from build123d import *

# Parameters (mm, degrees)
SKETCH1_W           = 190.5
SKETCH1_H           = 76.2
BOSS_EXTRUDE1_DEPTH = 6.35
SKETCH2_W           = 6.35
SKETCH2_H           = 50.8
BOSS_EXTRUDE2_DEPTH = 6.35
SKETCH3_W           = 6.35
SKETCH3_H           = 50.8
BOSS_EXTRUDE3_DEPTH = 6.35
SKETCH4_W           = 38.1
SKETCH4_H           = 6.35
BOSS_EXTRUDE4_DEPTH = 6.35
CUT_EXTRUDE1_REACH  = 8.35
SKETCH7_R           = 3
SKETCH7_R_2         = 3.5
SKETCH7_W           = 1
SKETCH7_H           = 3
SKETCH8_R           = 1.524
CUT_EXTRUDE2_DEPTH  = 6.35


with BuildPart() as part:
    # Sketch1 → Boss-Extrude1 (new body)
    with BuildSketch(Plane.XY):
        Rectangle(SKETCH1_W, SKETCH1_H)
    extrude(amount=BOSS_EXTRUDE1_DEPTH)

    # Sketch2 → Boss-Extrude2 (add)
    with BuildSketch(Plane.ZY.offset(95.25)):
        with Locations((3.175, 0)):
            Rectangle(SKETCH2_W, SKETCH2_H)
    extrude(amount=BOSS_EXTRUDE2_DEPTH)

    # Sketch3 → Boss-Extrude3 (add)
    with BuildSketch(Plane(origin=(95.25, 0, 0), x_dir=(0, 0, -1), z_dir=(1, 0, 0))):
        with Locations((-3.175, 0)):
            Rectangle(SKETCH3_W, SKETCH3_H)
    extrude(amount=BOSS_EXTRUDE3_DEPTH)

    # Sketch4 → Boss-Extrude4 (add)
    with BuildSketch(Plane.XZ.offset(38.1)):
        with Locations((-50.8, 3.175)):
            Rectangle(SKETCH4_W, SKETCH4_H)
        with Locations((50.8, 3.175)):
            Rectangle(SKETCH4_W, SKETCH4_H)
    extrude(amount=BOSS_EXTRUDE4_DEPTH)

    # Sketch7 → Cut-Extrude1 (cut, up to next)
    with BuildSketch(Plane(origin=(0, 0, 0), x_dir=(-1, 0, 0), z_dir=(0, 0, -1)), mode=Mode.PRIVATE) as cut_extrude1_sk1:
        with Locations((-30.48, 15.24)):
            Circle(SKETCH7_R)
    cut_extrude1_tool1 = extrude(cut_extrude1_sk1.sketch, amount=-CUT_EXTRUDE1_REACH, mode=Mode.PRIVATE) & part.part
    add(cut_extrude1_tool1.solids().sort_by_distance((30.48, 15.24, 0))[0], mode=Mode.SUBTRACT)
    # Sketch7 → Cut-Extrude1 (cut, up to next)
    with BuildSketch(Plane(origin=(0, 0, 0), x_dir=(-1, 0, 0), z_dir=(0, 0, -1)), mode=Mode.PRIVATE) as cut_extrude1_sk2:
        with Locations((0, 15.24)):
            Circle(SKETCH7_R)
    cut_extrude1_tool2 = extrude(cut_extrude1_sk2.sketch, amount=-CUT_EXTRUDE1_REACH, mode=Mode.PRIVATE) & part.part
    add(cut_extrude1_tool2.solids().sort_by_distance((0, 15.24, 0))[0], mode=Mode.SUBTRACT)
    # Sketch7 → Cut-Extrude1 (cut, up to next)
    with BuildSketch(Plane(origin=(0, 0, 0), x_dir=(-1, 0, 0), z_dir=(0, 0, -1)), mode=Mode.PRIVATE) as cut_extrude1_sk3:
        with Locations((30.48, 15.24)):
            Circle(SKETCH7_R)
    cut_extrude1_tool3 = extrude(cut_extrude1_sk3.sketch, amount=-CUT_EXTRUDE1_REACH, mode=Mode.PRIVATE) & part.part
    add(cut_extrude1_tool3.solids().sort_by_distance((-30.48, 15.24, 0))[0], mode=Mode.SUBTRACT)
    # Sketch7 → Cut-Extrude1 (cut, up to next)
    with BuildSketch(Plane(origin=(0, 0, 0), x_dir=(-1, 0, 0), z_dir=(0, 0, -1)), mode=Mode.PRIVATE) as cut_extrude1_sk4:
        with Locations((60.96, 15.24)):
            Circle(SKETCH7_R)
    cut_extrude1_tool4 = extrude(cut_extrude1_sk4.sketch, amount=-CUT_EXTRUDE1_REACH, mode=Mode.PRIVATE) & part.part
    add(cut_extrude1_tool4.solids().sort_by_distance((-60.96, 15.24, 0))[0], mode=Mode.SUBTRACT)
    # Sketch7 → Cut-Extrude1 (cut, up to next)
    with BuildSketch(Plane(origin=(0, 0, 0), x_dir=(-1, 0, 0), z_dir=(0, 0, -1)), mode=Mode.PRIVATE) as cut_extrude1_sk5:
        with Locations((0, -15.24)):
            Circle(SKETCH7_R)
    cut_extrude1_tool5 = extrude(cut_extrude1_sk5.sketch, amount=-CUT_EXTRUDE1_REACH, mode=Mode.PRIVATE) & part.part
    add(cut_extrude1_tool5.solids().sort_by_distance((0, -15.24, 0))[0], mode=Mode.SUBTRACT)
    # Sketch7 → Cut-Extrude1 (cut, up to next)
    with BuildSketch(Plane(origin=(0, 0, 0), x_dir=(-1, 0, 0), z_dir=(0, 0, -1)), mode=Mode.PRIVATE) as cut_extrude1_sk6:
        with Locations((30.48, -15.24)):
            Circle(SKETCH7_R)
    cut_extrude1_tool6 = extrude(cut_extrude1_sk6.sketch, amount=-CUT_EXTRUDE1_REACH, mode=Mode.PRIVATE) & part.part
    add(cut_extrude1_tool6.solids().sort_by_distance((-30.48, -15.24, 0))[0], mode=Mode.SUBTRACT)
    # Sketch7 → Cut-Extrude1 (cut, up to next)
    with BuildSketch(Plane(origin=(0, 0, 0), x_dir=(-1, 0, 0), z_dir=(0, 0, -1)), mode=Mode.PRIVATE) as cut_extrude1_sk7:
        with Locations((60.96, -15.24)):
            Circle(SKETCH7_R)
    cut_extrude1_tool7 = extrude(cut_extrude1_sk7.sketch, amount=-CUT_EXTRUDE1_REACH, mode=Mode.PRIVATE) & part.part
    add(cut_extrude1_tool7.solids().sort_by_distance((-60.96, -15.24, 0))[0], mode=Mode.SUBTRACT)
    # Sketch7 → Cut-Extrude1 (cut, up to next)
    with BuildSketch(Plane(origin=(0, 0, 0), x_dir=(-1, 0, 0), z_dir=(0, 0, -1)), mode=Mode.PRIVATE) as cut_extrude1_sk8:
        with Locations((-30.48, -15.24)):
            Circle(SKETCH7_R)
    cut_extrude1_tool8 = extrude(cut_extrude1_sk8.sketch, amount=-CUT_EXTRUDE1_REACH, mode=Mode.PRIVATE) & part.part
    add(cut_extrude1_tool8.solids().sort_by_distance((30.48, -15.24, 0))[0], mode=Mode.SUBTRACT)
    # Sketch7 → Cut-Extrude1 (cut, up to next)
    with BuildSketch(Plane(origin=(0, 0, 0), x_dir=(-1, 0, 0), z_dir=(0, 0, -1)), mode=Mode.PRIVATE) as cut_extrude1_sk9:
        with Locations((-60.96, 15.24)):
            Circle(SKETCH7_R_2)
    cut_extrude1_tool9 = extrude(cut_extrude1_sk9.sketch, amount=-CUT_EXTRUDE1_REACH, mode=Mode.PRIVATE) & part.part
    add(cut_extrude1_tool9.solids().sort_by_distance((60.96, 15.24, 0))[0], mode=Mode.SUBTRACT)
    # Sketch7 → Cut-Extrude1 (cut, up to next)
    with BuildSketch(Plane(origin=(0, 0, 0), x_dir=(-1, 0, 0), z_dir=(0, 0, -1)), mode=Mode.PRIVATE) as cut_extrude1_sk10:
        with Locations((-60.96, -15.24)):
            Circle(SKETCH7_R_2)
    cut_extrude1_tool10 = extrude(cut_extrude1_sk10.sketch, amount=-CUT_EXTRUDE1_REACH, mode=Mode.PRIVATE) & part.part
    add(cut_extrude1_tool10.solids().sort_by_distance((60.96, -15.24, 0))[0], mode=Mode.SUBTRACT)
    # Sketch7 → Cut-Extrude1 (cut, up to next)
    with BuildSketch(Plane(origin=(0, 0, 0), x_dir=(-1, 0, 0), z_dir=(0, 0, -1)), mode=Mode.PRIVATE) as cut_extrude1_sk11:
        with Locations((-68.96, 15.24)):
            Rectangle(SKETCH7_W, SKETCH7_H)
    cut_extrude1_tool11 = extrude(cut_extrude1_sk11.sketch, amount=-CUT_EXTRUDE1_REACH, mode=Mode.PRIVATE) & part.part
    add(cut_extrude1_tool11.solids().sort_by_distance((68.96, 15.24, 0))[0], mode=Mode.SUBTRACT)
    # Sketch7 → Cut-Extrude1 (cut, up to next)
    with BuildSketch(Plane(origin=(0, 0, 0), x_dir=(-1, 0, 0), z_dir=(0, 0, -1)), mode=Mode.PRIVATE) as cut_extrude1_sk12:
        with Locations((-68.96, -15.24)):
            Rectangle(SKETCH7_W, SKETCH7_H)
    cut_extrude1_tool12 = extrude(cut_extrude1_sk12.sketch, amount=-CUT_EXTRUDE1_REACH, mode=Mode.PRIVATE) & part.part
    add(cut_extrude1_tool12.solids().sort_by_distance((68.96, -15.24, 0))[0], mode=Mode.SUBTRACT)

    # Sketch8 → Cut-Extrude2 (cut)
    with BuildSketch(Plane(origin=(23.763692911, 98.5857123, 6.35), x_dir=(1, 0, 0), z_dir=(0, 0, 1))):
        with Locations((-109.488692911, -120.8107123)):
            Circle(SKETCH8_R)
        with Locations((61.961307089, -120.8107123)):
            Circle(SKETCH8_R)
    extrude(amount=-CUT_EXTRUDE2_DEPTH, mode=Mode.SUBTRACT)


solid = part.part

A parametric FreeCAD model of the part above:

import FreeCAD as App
import Part
import Sketcher
Q = App.Units.Quantity

doc = App.newDocument("Part")
body = doc.addObject("PartDesign::Body", "Body")

sketch1 = body.newObject("Sketcher::SketchObject", "Sketch")
sketch1.AttachmentSupport = (doc.getObject("XY_Plane"), [""])
sketch1.MapMode = "FlatFace"
sketch1.addGeometry(Part.LineSegment(App.Vector(-95, 38, 0), App.Vector(-95, -38, 0)), False)
sketch1.addGeometry(Part.LineSegment(App.Vector(-95, -38, 0), App.Vector(95, -38, 0)), False)
sketch1.addGeometry(Part.LineSegment(App.Vector(95, -38, 0), App.Vector(95, 38, 0)), False)
sketch1.addGeometry(Part.LineSegment(App.Vector(95, 38, 0), App.Vector(-95, 38, 0)), False)
sketch1.addConstraint(Sketcher.Constraint("Coincident", 0, 2, 1, 1))
sketch1.addConstraint(Sketcher.Constraint("Coincident", 1, 2, 2, 1))
sketch1.addConstraint(Sketcher.Constraint("Coincident", 2, 2, 3, 1))
sketch1.addConstraint(Sketcher.Constraint("Coincident", 3, 2, 0, 1))
sketch1.addConstraint(Sketcher.Constraint("Vertical", 0))
sketch1.addConstraint(Sketcher.Constraint("Horizontal", 1))
sketch1.addConstraint(Sketcher.Constraint("Vertical", 2))
sketch1.addConstraint(Sketcher.Constraint("Horizontal", 3))
sketch1.addConstraint(Sketcher.Constraint("Symmetric", 0, 2, 2, 2, -1, 1))
sketch1.addConstraint(Sketcher.Constraint("DistanceY", 0, 2, 0, 1, Q("3 in")))
sketch1.addConstraint(Sketcher.Constraint("DistanceX", 1, 1, 1, 2, Q("7.5 in")))
pad1 = body.newObject("PartDesign::Pad", "Pad")
pad1.Profile = sketch1
pad1.Length = Q("0.25 in")

sketch2 = body.newObject("Sketcher::SketchObject", "Sketch001")
sketch2.AttachmentSupport = (doc.getObject("YZ_Plane"), [""])
sketch2.MapMode = "FlatFace"
sketch2.AttachmentOffset = App.Placement(App.Vector(0, 0, -3.75 * 25.4), App.Rotation())
sketch2.addGeometry(Part.LineSegment(App.Vector(25, 0, 0), App.Vector(-25, 0, 0)), False)
sketch2.addGeometry(Part.LineSegment(App.Vector(-25, 0, 0), App.Vector(-25, 6, 0)), False)
sketch2.addGeometry(Part.LineSegment(App.Vector(-25, 6, 0), App.Vector(25, 6, 0)), False)
sketch2.addGeometry(Part.LineSegment(App.Vector(25, 6, 0), App.Vector(25, 0, 0)), False)
sketch2.addConstraint(Sketcher.Constraint("Coincident", 0, 2, 1, 1))
sketch2.addConstraint(Sketcher.Constraint("Coincident", 1, 2, 2, 1))
sketch2.addConstraint(Sketcher.Constraint("Coincident", 2, 2, 3, 1))
sketch2.addConstraint(Sketcher.Constraint("Coincident", 3, 2, 0, 1))
sketch2.addConstraint(Sketcher.Constraint("Horizontal", 0))
sketch2.addConstraint(Sketcher.Constraint("Vertical", 1))
sketch2.addConstraint(Sketcher.Constraint("Horizontal", 2))
sketch2.addConstraint(Sketcher.Constraint("Vertical", 3))
sketch2.addConstraint(Sketcher.Constraint("Symmetric", 0, 2, 3, 2, -1, 1))
sketch2.addConstraint(Sketcher.Constraint("DistanceX", 0, 2, 0, 1, Q("2 in")))
sketch2.addConstraint(Sketcher.Constraint("DistanceY", 1, 1, 1, 2, Q("0.25 in")))
pad2 = body.newObject("PartDesign::Pad", "Pad001")
pad2.Profile = sketch2
pad2.Length = Q("0.25 in")
pad2.Reversed = True

sketch3 = body.newObject("Sketcher::SketchObject", "Sketch002")
sketch3.AttachmentSupport = (doc.getObject("YZ_Plane"), [""])
sketch3.MapMode = "FlatFace"
sketch3.AttachmentOffset = App.Placement(App.Vector(0, 0, 3.75 * 25.4), App.Rotation())
sketch3.addGeometry(Part.LineSegment(App.Vector(25, 6, 0), App.Vector(-25, 6, 0)), False)
sketch3.addGeometry(Part.LineSegment(App.Vector(-25, 6, 0), App.Vector(-25, 0, 0)), False)
sketch3.addGeometry(Part.LineSegment(App.Vector(-25, 0, 0), App.Vector(25, 0, 0)), False)
sketch3.addGeometry(Part.LineSegment(App.Vector(25, 0, 0), App.Vector(25, 6, 0)), False)
sketch3.addConstraint(Sketcher.Constraint("Coincident", 0, 2, 1, 1))
sketch3.addConstraint(Sketcher.Constraint("Coincident", 1, 2, 2, 1))
sketch3.addConstraint(Sketcher.Constraint("Coincident", 2, 2, 3, 1))
sketch3.addConstraint(Sketcher.Constraint("Coincident", 3, 2, 0, 1))
sketch3.addConstraint(Sketcher.Constraint("Horizontal", 0))
sketch3.addConstraint(Sketcher.Constraint("Vertical", 1))
sketch3.addConstraint(Sketcher.Constraint("Horizontal", 2))
sketch3.addConstraint(Sketcher.Constraint("Vertical", 3))
sketch3.addConstraint(Sketcher.Constraint("Symmetric", 1, 2, 2, 2, -1, 1))
sketch3.addConstraint(Sketcher.Constraint("DistanceX", 0, 2, 0, 1, Q("2 in")))
sketch3.addConstraint(Sketcher.Constraint("DistanceY", 1, 2, 1, 1, Q("0.25 in")))
pad3 = body.newObject("PartDesign::Pad", "Pad002")
pad3.Profile = sketch3
pad3.Length = Q("0.25 in")

sketch4 = body.newObject("Sketcher::SketchObject", "Sketch003")
sketch4.AttachmentSupport = (doc.getObject("XZ_Plane"), [""])
sketch4.MapMode = "FlatFace"
sketch4.AttachmentOffset = App.Placement(App.Vector(0, 0, 1.5 * 25.4), App.Rotation())
sketch4.addGeometry(Part.LineSegment(App.Vector(-70, 6, 0), App.Vector(-70, 0, 0)), False)
sketch4.addGeometry(Part.LineSegment(App.Vector(-70, 0, 0), App.Vector(-32, 0, 0)), False)
sketch4.addGeometry(Part.LineSegment(App.Vector(-32, 0, 0), App.Vector(-32, 6, 0)), False)
sketch4.addGeometry(Part.LineSegment(App.Vector(-32, 6, 0), App.Vector(-70, 6, 0)), False)
sketch4.addGeometry(Part.LineSegment(App.Vector(32, 6, 0), App.Vector(32, 0, 0)), False)
sketch4.addGeometry(Part.LineSegment(App.Vector(32, 0, 0), App.Vector(70, 0, 0)), False)
sketch4.addGeometry(Part.LineSegment(App.Vector(70, 0, 0), App.Vector(70, 6, 0)), False)
sketch4.addGeometry(Part.LineSegment(App.Vector(70, 6, 0), App.Vector(32, 6, 0)), False)
sketch4.addConstraint(Sketcher.Constraint("Coincident", 0, 2, 1, 1))
sketch4.addConstraint(Sketcher.Constraint("Coincident", 1, 2, 2, 1))
sketch4.addConstraint(Sketcher.Constraint("Coincident", 2, 2, 3, 1))
sketch4.addConstraint(Sketcher.Constraint("Coincident", 3, 2, 0, 1))
sketch4.addConstraint(Sketcher.Constraint("Coincident", 4, 2, 5, 1))
sketch4.addConstraint(Sketcher.Constraint("Coincident", 5, 2, 6, 1))
sketch4.addConstraint(Sketcher.Constraint("Coincident", 6, 2, 7, 1))
sketch4.addConstraint(Sketcher.Constraint("Coincident", 7, 2, 4, 1))
sketch4.addConstraint(Sketcher.Constraint("Vertical", 0))
sketch4.addConstraint(Sketcher.Constraint("Horizontal", 1))
sketch4.addConstraint(Sketcher.Constraint("Vertical", 2))
sketch4.addConstraint(Sketcher.Constraint("Horizontal", 3))
sketch4.addConstraint(Sketcher.Constraint("Vertical", 4))
sketch4.addConstraint(Sketcher.Constraint("Horizontal", 5))
sketch4.addConstraint(Sketcher.Constraint("Vertical", 6))
sketch4.addConstraint(Sketcher.Constraint("Horizontal", 7))
sketch4.addConstraint(Sketcher.Constraint("Symmetric", 1, 2, 4, 2, -1, 1))
sketch4.addConstraint(Sketcher.Constraint("Symmetric", 0, 2, 5, 2, -2))
sketch4.addConstraint(Sketcher.Constraint("Horizontal", 3, 2, 6, 2))
sketch4.addConstraint(Sketcher.Constraint("DistanceX", 1, 1, 1, 2, Q("1.5 in")))
sketch4.addConstraint(Sketcher.Constraint("DistanceX", 0, 2, 4, 2, Q("4 in")))
sketch4.addConstraint(Sketcher.Constraint("DistanceY", 0, 2, 0, 1, Q("0.25 in")))
pad4 = body.newObject("PartDesign::Pad", "Pad003")
pad4.Profile = sketch4
pad4.Length = Q("0.25 in")

sketch5 = body.newObject("Sketcher::SketchObject", "Sketch004")
sketch5.AttachmentSupport = (doc.getObject("XY_Plane"), [""])
sketch5.MapMode = "FlatFace"
sketch5.addGeometry(Part.Circle(App.Vector(30.5, 15.2, 0), App.Vector(0, 0, 1), 3), False)
sketch5.addConstraint(Sketcher.Constraint("DistanceX", -1, 1, 0, 3, Q("1.2 in")))
sketch5.addConstraint(Sketcher.Constraint("DistanceY", -1, 1, 0, 3, Q("0.6 in")))
sketch5.addConstraint(Sketcher.Constraint("Diameter", 0, 6.0))
pocket1 = body.newObject("PartDesign::Pocket", "Pocket")
pocket1.Profile = sketch5
pocket1.Type = "UpToFirst"
pocket1.Reversed = True

sketch6 = body.newObject("Sketcher::SketchObject", "Sketch005")
sketch6.AttachmentSupport = (doc.getObject("XY_Plane"), [""])
sketch6.MapMode = "FlatFace"
sketch6.addGeometry(Part.Circle(App.Vector(0, 15.2, 0), App.Vector(0, 0, 1), 3), False)
sketch6.addConstraint(Sketcher.Constraint("PointOnObject", 0, 3, -2))
sketch6.addConstraint(Sketcher.Constraint("DistanceY", -1, 1, 0, 3, Q("0.6 in")))
sketch6.addConstraint(Sketcher.Constraint("Diameter", 0, 6.0))
pocket2 = body.newObject("PartDesign::Pocket", "Pocket001")
pocket2.Profile = sketch6
pocket2.Type = "UpToFirst"
pocket2.Reversed = True

sketch7 = body.newObject("Sketcher::SketchObject", "Sketch006")
sketch7.AttachmentSupport = (doc.getObject("XY_Plane"), [""])
sketch7.MapMode = "FlatFace"
sketch7.addGeometry(Part.Circle(App.Vector(-30.5, 15.2, 0), App.Vector(0, 0, 1), 3), False)
sketch7.addConstraint(Sketcher.Constraint("DistanceX", 0, 3, -1, 1, Q("1.2 in")))
sketch7.addConstraint(Sketcher.Constraint("DistanceY", -1, 1, 0, 3, Q("0.6 in")))
sketch7.addConstraint(Sketcher.Constraint("Diameter", 0, 6.0))
pocket3 = body.newObject("PartDesign::Pocket", "Pocket002")
pocket3.Profile = sketch7
pocket3.Type = "UpToFirst"
pocket3.Reversed = True

sketch8 = body.newObject("Sketcher::SketchObject", "Sketch007")
sketch8.AttachmentSupport = (doc.getObject("XY_Plane"), [""])
sketch8.MapMode = "FlatFace"
sketch8.addGeometry(Part.Circle(App.Vector(-61, 15.2, 0), App.Vector(0, 0, 1), 3), False)
sketch8.addConstraint(Sketcher.Constraint("DistanceX", 0, 3, -1, 1, Q("2.4 in")))
sketch8.addConstraint(Sketcher.Constraint("DistanceY", -1, 1, 0, 3, Q("0.6 in")))
sketch8.addConstraint(Sketcher.Constraint("Diameter", 0, 6.0))
pocket4 = body.newObject("PartDesign::Pocket", "Pocket003")
pocket4.Profile = sketch8
pocket4.Type = "UpToFirst"
pocket4.Reversed = True

sketch9 = body.newObject("Sketcher::SketchObject", "Sketch008")
sketch9.AttachmentSupport = (doc.getObject("XY_Plane"), [""])
sketch9.MapMode = "FlatFace"
sketch9.addGeometry(Part.Circle(App.Vector(0, -15.2, 0), App.Vector(0, 0, 1), 3), False)
sketch9.addConstraint(Sketcher.Constraint("PointOnObject", 0, 3, -2))
sketch9.addConstraint(Sketcher.Constraint("DistanceY", 0, 3, -1, 1, Q("0.6 in")))
sketch9.addConstraint(Sketcher.Constraint("Diameter", 0, 6.0))
pocket5 = body.newObject("PartDesign::Pocket", "Pocket004")
pocket5.Profile = sketch9
pocket5.Type = "UpToFirst"
pocket5.Reversed = True

sketch10 = body.newObject("Sketcher::SketchObject", "Sketch009")
sketch10.AttachmentSupport = (doc.getObject("XY_Plane"), [""])
sketch10.MapMode = "FlatFace"
sketch10.addGeometry(Part.Circle(App.Vector(-30.5, -15.2, 0), App.Vector(0, 0, 1), 3), False)
sketch10.addConstraint(Sketcher.Constraint("DistanceX", 0, 3, -1, 1, Q("1.2 in")))
sketch10.addConstraint(Sketcher.Constraint("DistanceY", 0, 3, -1, 1, Q("0.6 in")))
sketch10.addConstraint(Sketcher.Constraint("Diameter", 0, 6.0))
pocket6 = body.newObject("PartDesign::Pocket", "Pocket005")
pocket6.Profile = sketch10
pocket6.Type = "UpToFirst"
pocket6.Reversed = True

sketch11 = body.newObject("Sketcher::SketchObject", "Sketch010")
sketch11.AttachmentSupport = (doc.getObject("XY_Plane"), [""])
sketch11.MapMode = "FlatFace"
sketch11.addGeometry(Part.Circle(App.Vector(-61, -15.2, 0), App.Vector(0, 0, 1), 3), False)
sketch11.addConstraint(Sketcher.Constraint("DistanceX", 0, 3, -1, 1, Q("2.4 in")))
sketch11.addConstraint(Sketcher.Constraint("DistanceY", 0, 3, -1, 1, Q("0.6 in")))
sketch11.addConstraint(Sketcher.Constraint("Diameter", 0, 6.0))
pocket7 = body.newObject("PartDesign::Pocket", "Pocket006")
pocket7.Profile = sketch11
pocket7.Type = "UpToFirst"
pocket7.Reversed = True

sketch12 = body.newObject("Sketcher::SketchObject", "Sketch011")
sketch12.AttachmentSupport = (doc.getObject("XY_Plane"), [""])
sketch12.MapMode = "FlatFace"
sketch12.addGeometry(Part.Circle(App.Vector(30.5, -15.2, 0), App.Vector(0, 0, 1), 3), False)
sketch12.addConstraint(Sketcher.Constraint("DistanceX", -1, 1, 0, 3, Q("1.2 in")))
sketch12.addConstraint(Sketcher.Constraint("DistanceY", 0, 3, -1, 1, Q("0.6 in")))
sketch12.addConstraint(Sketcher.Constraint("Diameter", 0, 6.0))
pocket8 = body.newObject("PartDesign::Pocket", "Pocket007")
pocket8.Profile = sketch12
pocket8.Type = "UpToFirst"
pocket8.Reversed = True

sketch13 = body.newObject("Sketcher::SketchObject", "Sketch012")
sketch13.AttachmentSupport = (doc.getObject("XY_Plane"), [""])
sketch13.MapMode = "FlatFace"
sketch13.addGeometry(Part.Circle(App.Vector(61, 15.2, 0), App.Vector(0, 0, 1), 3.5), False)
sketch13.addConstraint(Sketcher.Constraint("DistanceX", -1, 1, 0, 3, Q("2.4 in")))
sketch13.addConstraint(Sketcher.Constraint("DistanceY", -1, 1, 0, 3, Q("0.6 in")))
sketch13.addConstraint(Sketcher.Constraint("Diameter", 0, 7.0))
pocket9 = body.newObject("PartDesign::Pocket", "Pocket008")
pocket9.Profile = sketch13
pocket9.Type = "UpToFirst"
pocket9.Reversed = True

sketch14 = body.newObject("Sketcher::SketchObject", "Sketch013")
sketch14.AttachmentSupport = (doc.getObject("XY_Plane"), [""])
sketch14.MapMode = "FlatFace"
sketch14.addGeometry(Part.Circle(App.Vector(61, -15.2, 0), App.Vector(0, 0, 1), 3.5), False)
sketch14.addConstraint(Sketcher.Constraint("DistanceX", -1, 1, 0, 3, Q("2.4 in")))
sketch14.addConstraint(Sketcher.Constraint("DistanceY", 0, 3, -1, 1, Q("0.6 in")))
sketch14.addConstraint(Sketcher.Constraint("Diameter", 0, 7.0))
pocket10 = body.newObject("PartDesign::Pocket", "Pocket009")
pocket10.Profile = sketch14
pocket10.Type = "UpToFirst"
pocket10.Reversed = True

sketch15 = body.newObject("Sketcher::SketchObject", "Sketch014")
sketch15.AttachmentSupport = (doc.getObject("XY_Plane"), [""])
sketch15.MapMode = "FlatFace"
sketch15.addGeometry(Part.LineSegment(App.Vector(69.5, 16.7, 0), App.Vector(69.5, 13.7, 0)), False)
sketch15.addGeometry(Part.LineSegment(App.Vector(69.5, 13.7, 0), App.Vector(68.5, 13.7, 0)), False)
sketch15.addGeometry(Part.LineSegment(App.Vector(68.5, 13.7, 0), App.Vector(68.5, 16.7, 0)), False)
sketch15.addGeometry(Part.LineSegment(App.Vector(68.5, 16.7, 0), App.Vector(69.5, 16.7, 0)), False)
sketch15.addConstraint(Sketcher.Constraint("Coincident", 0, 2, 1, 1))
sketch15.addConstraint(Sketcher.Constraint("Coincident", 1, 2, 2, 1))
sketch15.addConstraint(Sketcher.Constraint("Coincident", 2, 2, 3, 1))
sketch15.addConstraint(Sketcher.Constraint("Coincident", 3, 2, 0, 1))
sketch15.addConstraint(Sketcher.Constraint("Vertical", 0))
sketch15.addConstraint(Sketcher.Constraint("Horizontal", 1))
sketch15.addConstraint(Sketcher.Constraint("Vertical", 2))
sketch15.addConstraint(Sketcher.Constraint("Horizontal", 3))
sketch15.addConstraint(Sketcher.Constraint("DistanceX", 1, 2, 1, 1, 1.0))
sketch15.addConstraint(Sketcher.Constraint("DistanceY", 0, 2, 0, 1, 3.0))
sketch15.addConstraint(Sketcher.Constraint("DistanceX", -1, 1, 0, 2, 69.46))
sketch15.addConstraint(Sketcher.Constraint("DistanceY", -1, 1, 0, 2, 13.74))
pocket11 = body.newObject("PartDesign::Pocket", "Pocket010")
pocket11.Profile = sketch15
pocket11.Type = "UpToFirst"
pocket11.Reversed = True

sketch16 = body.newObject("Sketcher::SketchObject", "Sketch015")
sketch16.AttachmentSupport = (doc.getObject("XY_Plane"), [""])
sketch16.MapMode = "FlatFace"
sketch16.addGeometry(Part.LineSegment(App.Vector(69.5, -13.7, 0), App.Vector(69.5, -16.7, 0)), False)
sketch16.addGeometry(Part.LineSegment(App.Vector(69.5, -16.7, 0), App.Vector(68.5, -16.7, 0)), False)
sketch16.addGeometry(Part.LineSegment(App.Vector(68.5, -16.7, 0), App.Vector(68.5, -13.7, 0)), False)
sketch16.addGeometry(Part.LineSegment(App.Vector(68.5, -13.7, 0), App.Vector(69.5, -13.7, 0)), False)
sketch16.addConstraint(Sketcher.Constraint("Coincident", 0, 2, 1, 1))
sketch16.addConstraint(Sketcher.Constraint("Coincident", 1, 2, 2, 1))
sketch16.addConstraint(Sketcher.Constraint("Coincident", 2, 2, 3, 1))
sketch16.addConstraint(Sketcher.Constraint("Coincident", 3, 2, 0, 1))
sketch16.addConstraint(Sketcher.Constraint("Vertical", 0))
sketch16.addConstraint(Sketcher.Constraint("Horizontal", 1))
sketch16.addConstraint(Sketcher.Constraint("Vertical", 2))
sketch16.addConstraint(Sketcher.Constraint("Horizontal", 3))
sketch16.addConstraint(Sketcher.Constraint("DistanceX", 1, 2, 1, 1, 1.0))
sketch16.addConstraint(Sketcher.Constraint("DistanceY", 0, 2, 0, 1, 3.0))
sketch16.addConstraint(Sketcher.Constraint("DistanceX", -1, 1, 0, 2, 69.46))
sketch16.addConstraint(Sketcher.Constraint("DistanceY", 0, 2, -1, 1, 16.74))
pocket12 = body.newObject("PartDesign::Pocket", "Pocket011")
pocket12.Profile = sketch16
pocket12.Type = "UpToFirst"
pocket12.Reversed = True

sketch17 = body.newObject("Sketcher::SketchObject", "Sketch016")
sketch17.AttachmentSupport = (doc.getObject("XY_Plane"), [""])
sketch17.MapMode = "FlatFace"
sketch17.AttachmentOffset = App.Placement(App.Vector(0, 0, 0.25 * 25.4), App.Rotation())
sketch17.addGeometry(Part.Circle(App.Vector(-85.7, -22.2, 0), App.Vector(0, 0, 1), 1.5), False)
sketch17.addGeometry(Part.Circle(App.Vector(85.7, -22.2, 0), App.Vector(0, 0, 1), 1.5), False)
sketch17.addConstraint(Sketcher.Constraint("Equal", 0, 1))
sketch17.addConstraint(Sketcher.Constraint("Symmetric", 0, 3, 1, 3, -2))
sketch17.addConstraint(Sketcher.Constraint("Diameter", 0, Q("0.12 in")))
sketch17.addConstraint(Sketcher.Constraint("DistanceX", 0, 3, 1, 3, Q("6.75 in")))
sketch17.addConstraint(Sketcher.Constraint("DistanceY", 0, 3, -1, 1, Q("0.875 in")))
pocket13 = body.newObject("PartDesign::Pocket", "Pocket012")
pocket13.Profile = sketch17
pocket13.Length = Q("0.25 in")

doc.recompute()
